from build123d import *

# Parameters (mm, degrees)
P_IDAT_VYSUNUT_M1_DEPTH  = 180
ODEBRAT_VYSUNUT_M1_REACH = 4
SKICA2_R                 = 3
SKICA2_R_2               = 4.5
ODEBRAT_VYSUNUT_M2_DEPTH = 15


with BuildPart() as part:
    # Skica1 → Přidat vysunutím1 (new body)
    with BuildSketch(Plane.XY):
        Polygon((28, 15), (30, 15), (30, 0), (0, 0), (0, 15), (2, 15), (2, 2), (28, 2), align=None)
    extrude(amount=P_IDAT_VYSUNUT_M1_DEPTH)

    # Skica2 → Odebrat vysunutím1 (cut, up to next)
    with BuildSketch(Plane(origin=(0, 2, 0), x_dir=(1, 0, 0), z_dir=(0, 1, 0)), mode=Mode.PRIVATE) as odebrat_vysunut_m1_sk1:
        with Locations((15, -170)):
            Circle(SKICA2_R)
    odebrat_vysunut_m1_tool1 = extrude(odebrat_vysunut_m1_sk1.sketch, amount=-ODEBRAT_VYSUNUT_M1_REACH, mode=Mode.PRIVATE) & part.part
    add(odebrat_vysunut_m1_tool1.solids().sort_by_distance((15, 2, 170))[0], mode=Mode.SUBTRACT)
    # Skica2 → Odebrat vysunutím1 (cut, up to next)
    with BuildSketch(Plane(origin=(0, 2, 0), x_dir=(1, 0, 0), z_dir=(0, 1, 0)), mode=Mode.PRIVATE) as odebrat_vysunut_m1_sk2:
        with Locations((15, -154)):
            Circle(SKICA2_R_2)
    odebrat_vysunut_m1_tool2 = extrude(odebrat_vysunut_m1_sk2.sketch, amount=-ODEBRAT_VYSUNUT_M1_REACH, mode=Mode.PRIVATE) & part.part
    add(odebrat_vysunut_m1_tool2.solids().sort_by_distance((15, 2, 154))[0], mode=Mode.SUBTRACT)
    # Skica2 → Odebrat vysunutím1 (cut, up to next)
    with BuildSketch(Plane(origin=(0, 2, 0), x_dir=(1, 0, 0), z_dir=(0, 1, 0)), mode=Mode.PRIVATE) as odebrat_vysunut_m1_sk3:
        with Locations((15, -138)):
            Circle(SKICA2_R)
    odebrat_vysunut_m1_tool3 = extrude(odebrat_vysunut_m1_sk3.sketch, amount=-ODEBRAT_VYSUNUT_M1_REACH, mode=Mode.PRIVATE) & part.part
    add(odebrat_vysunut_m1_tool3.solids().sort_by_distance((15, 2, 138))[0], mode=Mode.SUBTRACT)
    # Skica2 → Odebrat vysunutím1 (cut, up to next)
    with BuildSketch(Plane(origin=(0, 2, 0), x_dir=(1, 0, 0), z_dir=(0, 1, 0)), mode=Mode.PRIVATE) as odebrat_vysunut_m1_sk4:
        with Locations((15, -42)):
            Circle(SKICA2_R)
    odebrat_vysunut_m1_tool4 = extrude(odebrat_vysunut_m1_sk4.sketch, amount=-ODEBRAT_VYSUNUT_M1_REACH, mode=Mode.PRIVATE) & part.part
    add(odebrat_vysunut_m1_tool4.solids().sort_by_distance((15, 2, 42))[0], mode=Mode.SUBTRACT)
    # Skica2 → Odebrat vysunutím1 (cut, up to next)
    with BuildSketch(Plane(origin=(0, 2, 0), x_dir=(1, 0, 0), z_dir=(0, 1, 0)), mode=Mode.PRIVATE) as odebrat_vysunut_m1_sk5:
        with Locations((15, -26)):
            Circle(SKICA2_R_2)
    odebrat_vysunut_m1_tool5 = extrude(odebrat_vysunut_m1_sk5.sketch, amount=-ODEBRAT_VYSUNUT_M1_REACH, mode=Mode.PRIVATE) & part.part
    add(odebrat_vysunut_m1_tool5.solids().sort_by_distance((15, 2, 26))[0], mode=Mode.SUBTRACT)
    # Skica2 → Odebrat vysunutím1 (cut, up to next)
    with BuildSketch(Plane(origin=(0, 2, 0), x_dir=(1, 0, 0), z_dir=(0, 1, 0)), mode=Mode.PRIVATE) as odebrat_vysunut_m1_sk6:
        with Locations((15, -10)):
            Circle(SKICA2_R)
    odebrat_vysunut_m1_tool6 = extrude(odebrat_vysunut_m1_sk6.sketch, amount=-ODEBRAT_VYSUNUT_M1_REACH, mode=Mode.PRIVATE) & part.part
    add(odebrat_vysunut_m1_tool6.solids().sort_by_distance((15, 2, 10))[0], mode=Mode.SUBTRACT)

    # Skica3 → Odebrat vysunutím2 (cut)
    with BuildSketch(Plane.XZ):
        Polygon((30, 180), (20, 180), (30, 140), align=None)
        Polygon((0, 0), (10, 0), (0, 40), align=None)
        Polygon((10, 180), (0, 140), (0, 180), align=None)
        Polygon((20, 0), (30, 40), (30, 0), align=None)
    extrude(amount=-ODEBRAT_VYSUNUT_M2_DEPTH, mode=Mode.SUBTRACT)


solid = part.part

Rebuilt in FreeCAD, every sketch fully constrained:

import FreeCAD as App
import Part
import Sketcher

V = App.Vector


def add_polygon(sketch, points):
    """Adds a closed chain of lines whose ends are joined by coincident constraints."""
    first, n = sketch.GeometryCount, len(points)
    for a, b in zip(points, points[1:] + points[:1]):
        sketch.addGeometry(Part.LineSegment(App.Vector(*a, 0), App.Vector(*b, 0)), False)
    for i in range(n):
        sketch.addConstraint(Sketcher.Constraint("Coincident", first + i, 2, first + (i + 1) % n, 1))

doc = App.newDocument("Part")
body = doc.addObject("PartDesign::Body", "Body")

sketch1 = body.newObject("Sketcher::SketchObject", "Sketch")
sketch1.AttachmentSupport = (doc.getObject("XY_Plane"), [""])
sketch1.MapMode = "FlatFace"
add_polygon(sketch1, [(30, 15), (28, 15), (28, 2), (2, 2), (2, 15), (0, 15), (0, 0), (30, 0)])
sketch1.addConstraint(Sketcher.Constraint("Horizontal", 0))
sketch1.addConstraint(Sketcher.Constraint("Vertical", 1))
sketch1.addConstraint(Sketcher.Constraint("Horizontal", 2))
sketch1.addConstraint(Sketcher.Constraint("Vertical", 3))
sketch1.addConstraint(Sketcher.Constraint("Horizontal", 4))
sketch1.addConstraint(Sketcher.Constraint("Vertical", 5))
sketch1.addConstraint(Sketcher.Constraint("Horizontal", 6))
sketch1.addConstraint(Sketcher.Constraint("Vertical", 7))
sketch1.addConstraint(Sketcher.Constraint("Coincident", 5, 2, -1, 1))
sketch1.addConstraint(Sketcher.Constraint("Horizontal", 0, 2, 3, 2))
sketch1.addConstraint(Sketcher.Constraint("Equal", 0, 4))
sketch1.addConstraint(Sketcher.Constraint("DistanceX", 0, 2, 0, 1, 2.0))
sketch1.addConstraint(Sketcher.Constraint("DistanceX", 2, 2, 2, 1, 26.0))
sketch1.addConstraint(Sketcher.Constraint("DistanceY", 1, 2, 1, 1, 13.0))
sketch1.addConstraint(Sketcher.Constraint("DistanceY", 5, 2, 5, 1, 15.0))
pad1 = body.newObject("PartDesign::Pad", "Pad")
pad1.Profile = sketch1
pad1.Length = 180

sketch2 = body.newObject("Sketcher::SketchObject", "Sketch001")
sketch2.AttachmentSupport = (doc.getObject("XZ_Plane"), [""])
sketch2.MapMode = "FlatFace"
sketch2.AttachmentOffset = App.Placement(V(0, 0, -2), App.Rotation())
sketch2.addGeometry(Part.Circle(V(15, 170, 0), V(0, 0, 1), 3), False)
sketch2.addConstraint(Sketcher.Constraint("Diameter", 0, 6.0))
sketch2.addConstraint(Sketcher.Constraint("DistanceX", -1, 1, 0, 3, 15.0))
sketch2.addConstraint(Sketcher.Constraint("DistanceY", -1, 1, 0, 3, 170.0))
pocket1 = body.newObject("PartDesign::Pocket", "Pocket")
pocket1.Profile = sketch2
pocket1.Type = "UpToFirst"
pocket1.Reversed = True

sketch3 = body.newObject("Sketcher::SketchObject", "Sketch002")
sketch3.AttachmentSupport = (doc.getObject("XZ_Plane"), [""])
sketch3.MapMode = "FlatFace"
sketch3.AttachmentOffset = App.Placement(V(0, 0, -2), App.Rotation())
sketch3.addGeometry(Part.Circle(V(15, 154, 0), V(0, 0, 1), 4.5), False)
sketch3.addConstraint(Sketcher.Constraint("Diameter", 0, 9.0))
sketch3.addConstraint(Sketcher.Constraint("DistanceX", -1, 1, 0, 3, 15.0))
sketch3.addConstraint(Sketcher.Constraint("DistanceY", -1, 1, 0, 3, 154.0))
pocket2 = body.newObject("PartDesign::Pocket", "Pocket001")
pocket2.Profile = sketch3
pocket2.Type = "UpToFirst"
pocket2.Reversed = True

sketch4 = body.newObject("Sketcher::SketchObject", "Sketch003")
sketch4.AttachmentSupport = (doc.getObject("XZ_Plane"), [""])
sketch4.MapMode = "FlatFace"
sketch4.AttachmentOffset = App.Placement(V(0, 0, -2), App.Rotation())
sketch4.addGeometry(Part.Circle(V(15, 138, 0), V(0, 0, 1), 3), False)
sketch4.addConstraint(Sketcher.Constraint("Diameter", 0, 6.0))
sketch4.addConstraint(Sketcher.Constraint("DistanceX", -1, 1, 0, 3, 15.0))
sketch4.addConstraint(Sketcher.Constraint("DistanceY", -1, 1, 0, 3, 138.0))
pocket3 = body.newObject("PartDesign::Pocket", "Pocket002")
pocket3.Profile = sketch4
pocket3.Type = "UpToFirst"
pocket3.Reversed = True

sketch5 = body.newObject("Sketcher::SketchObject", "Sketch004")
sketch5.AttachmentSupport = (doc.getObject("XZ_Plane"), [""])
sketch5.MapMode = "FlatFace"
sketch5.AttachmentOffset = App.Placement(V(0, 0, -2), App.Rotation())
sketch5.addGeometry(Part.Circle(V(15, 42, 0), V(0, 0, 1), 3), False)
sketch5.addConstraint(Sketcher.Constraint("Diameter", 0, 6.0))
sketch5.addConstraint(Sketcher.Constraint("DistanceX", -1, 1, 0, 3, 15.0))
sketch5.addConstraint(Sketcher.Constraint("DistanceY", -1, 1, 0, 3, 42.0))
pocket4 = body.newObject("PartDesign::Pocket", "Pocket003")
pocket4.Profile = sketch5
pocket4.Type = "UpToFirst"
pocket4.Reversed = True

sketch6 = body.newObject("Sketcher::SketchObject", "Sketch005")
sketch6.AttachmentSupport = (doc.getObject("XZ_Plane"), [""])
sketch6.MapMode = "FlatFace"
sketch6.AttachmentOffset = App.Placement(V(0, 0, -2), App.Rotation())
sketch6.addGeometry(Part.Circle(V(15, 26, 0), V(0, 0, 1), 4.5), False)
sketch6.addConstraint(Sketcher.Constraint("Diameter", 0, 9.0))
sketch6.addConstraint(Sketcher.Constraint("DistanceX", -1, 1, 0, 3, 15.0))
sketch6.addConstraint(Sketcher.Constraint("DistanceY", -1, 1, 0, 3, 26.0))
pocket5 = body.newObject("PartDesign::Pocket", "Pocket004")
pocket5.Profile = sketch6
pocket5.Type = "UpToFirst"
pocket5.Reversed = True

sketch7 = body.newObject("Sketcher::SketchObject", "Sketch006")
sketch7.AttachmentSupport = (doc.getObject("XZ_Plane"), [""])
sketch7.MapMode = "FlatFace"
sketch7.AttachmentOffset = App.Placement(V(0, 0, -2), App.Rotation())
sketch7.addGeometry(Part.Circle(V(15, 10, 0), V(0, 0, 1), 3), False)
sketch7.addConstraint(Sketcher.Constraint("Diameter", 0, 6.0))
sketch7.addConstraint(Sketcher.Constraint("DistanceX", -1, 1, 0, 3, 15.0))
sketch7.addConstraint(Sketcher.Constraint("DistanceY", -1, 1, 0, 3, 10.0))
pocket6 = body.newObject("PartDesign::Pocket", "Pocket005")
pocket6.Profile = sketch7
pocket6.Type = "UpToFirst"
pocket6.Reversed = True

sketch8 = body.newObject("Sketcher::SketchObject", "Sketch007")
sketch8.AttachmentSupport = (doc.getObject("XZ_Plane"), [""])
sketch8.MapMode = "FlatFace"
add_polygon(sketch8, [(30, 180), (20, 180), (30, 140)])
add_polygon(sketch8, [(0, 0), (10, 0), (0, 40)])
add_polygon(sketch8, [(0, 140), (10, 180), (0, 180)])
add_polygon(sketch8, [(30, 40), (20, 0), (30, 0)])
sketch8.addConstraint(Sketcher.Constraint("Horizontal", 0))
sketch8.addConstraint(Sketcher.Constraint("Vertical", 2))
sketch8.addConstraint(Sketcher.Constraint("Horizontal", 3))
sketch8.addConstraint(Sketcher.Constraint("Vertical", 5))
sketch8.addConstraint(Sketcher.Constraint("Horizontal", 7))
sketch8.addConstraint(Sketcher.Constraint("Vertical", 8))
sketch8.addConstraint(Sketcher.Constraint("Horizontal", 10))
sketch8.addConstraint(Sketcher.Constraint("Vertical", 11))
sketch8.addConstraint(Sketcher.Constraint("Coincident", 5, 2, -1, 1))
sketch8.addConstraint(Sketcher.Constraint("PointOnObject", 7, 2, -2))
sketch8.addConstraint(Sketcher.Constraint("PointOnObject", 9, 2, -1))
sketch8.addConstraint(Sketcher.Constraint("Parallel", 1, 4))
sketch8.addConstraint(Sketcher.Constraint("Parallel", 6, 9))
sketch8.addConstraint(Sketcher.Constraint("Horizontal", 2, 2, 6, 2))
sketch8.addConstraint(Sketcher.Constraint("Horizontal", 1, 2, 8, 2))
sketch8.addConstraint(Sketcher.Constraint("Horizontal", 4, 2, 11, 2))
sketch8.addConstraint(Sketcher.Constraint("Vertical", 3, 2, 6, 2))
sketch8.addConstraint(Sketcher.Constraint("Vertical", 0, 2, 9, 2))
sketch8.addConstraint(Sketcher.Constraint("Vertical", 2, 2, 10, 2))
sketch8.addConstraint(Sketcher.Constraint("DistanceX", 0, 2, 0, 1, 10.0))
sketch8.addConstraint(Sketcher.Constraint("DistanceY", 2, 1, 2, 2, 40.0))
sketch8.addConstraint(Sketcher.Constraint("DistanceX", -1, 1, 0, 2, 20.0))
sketch8.addConstraint(Sketcher.Constraint("DistanceY", -1, 1, 0, 2, 180.0))
pocket7 = body.newObject("PartDesign::Pocket", "Pocket006")
pocket7.Profile = sketch8
pocket7.Length = 15

doc.recompute()
